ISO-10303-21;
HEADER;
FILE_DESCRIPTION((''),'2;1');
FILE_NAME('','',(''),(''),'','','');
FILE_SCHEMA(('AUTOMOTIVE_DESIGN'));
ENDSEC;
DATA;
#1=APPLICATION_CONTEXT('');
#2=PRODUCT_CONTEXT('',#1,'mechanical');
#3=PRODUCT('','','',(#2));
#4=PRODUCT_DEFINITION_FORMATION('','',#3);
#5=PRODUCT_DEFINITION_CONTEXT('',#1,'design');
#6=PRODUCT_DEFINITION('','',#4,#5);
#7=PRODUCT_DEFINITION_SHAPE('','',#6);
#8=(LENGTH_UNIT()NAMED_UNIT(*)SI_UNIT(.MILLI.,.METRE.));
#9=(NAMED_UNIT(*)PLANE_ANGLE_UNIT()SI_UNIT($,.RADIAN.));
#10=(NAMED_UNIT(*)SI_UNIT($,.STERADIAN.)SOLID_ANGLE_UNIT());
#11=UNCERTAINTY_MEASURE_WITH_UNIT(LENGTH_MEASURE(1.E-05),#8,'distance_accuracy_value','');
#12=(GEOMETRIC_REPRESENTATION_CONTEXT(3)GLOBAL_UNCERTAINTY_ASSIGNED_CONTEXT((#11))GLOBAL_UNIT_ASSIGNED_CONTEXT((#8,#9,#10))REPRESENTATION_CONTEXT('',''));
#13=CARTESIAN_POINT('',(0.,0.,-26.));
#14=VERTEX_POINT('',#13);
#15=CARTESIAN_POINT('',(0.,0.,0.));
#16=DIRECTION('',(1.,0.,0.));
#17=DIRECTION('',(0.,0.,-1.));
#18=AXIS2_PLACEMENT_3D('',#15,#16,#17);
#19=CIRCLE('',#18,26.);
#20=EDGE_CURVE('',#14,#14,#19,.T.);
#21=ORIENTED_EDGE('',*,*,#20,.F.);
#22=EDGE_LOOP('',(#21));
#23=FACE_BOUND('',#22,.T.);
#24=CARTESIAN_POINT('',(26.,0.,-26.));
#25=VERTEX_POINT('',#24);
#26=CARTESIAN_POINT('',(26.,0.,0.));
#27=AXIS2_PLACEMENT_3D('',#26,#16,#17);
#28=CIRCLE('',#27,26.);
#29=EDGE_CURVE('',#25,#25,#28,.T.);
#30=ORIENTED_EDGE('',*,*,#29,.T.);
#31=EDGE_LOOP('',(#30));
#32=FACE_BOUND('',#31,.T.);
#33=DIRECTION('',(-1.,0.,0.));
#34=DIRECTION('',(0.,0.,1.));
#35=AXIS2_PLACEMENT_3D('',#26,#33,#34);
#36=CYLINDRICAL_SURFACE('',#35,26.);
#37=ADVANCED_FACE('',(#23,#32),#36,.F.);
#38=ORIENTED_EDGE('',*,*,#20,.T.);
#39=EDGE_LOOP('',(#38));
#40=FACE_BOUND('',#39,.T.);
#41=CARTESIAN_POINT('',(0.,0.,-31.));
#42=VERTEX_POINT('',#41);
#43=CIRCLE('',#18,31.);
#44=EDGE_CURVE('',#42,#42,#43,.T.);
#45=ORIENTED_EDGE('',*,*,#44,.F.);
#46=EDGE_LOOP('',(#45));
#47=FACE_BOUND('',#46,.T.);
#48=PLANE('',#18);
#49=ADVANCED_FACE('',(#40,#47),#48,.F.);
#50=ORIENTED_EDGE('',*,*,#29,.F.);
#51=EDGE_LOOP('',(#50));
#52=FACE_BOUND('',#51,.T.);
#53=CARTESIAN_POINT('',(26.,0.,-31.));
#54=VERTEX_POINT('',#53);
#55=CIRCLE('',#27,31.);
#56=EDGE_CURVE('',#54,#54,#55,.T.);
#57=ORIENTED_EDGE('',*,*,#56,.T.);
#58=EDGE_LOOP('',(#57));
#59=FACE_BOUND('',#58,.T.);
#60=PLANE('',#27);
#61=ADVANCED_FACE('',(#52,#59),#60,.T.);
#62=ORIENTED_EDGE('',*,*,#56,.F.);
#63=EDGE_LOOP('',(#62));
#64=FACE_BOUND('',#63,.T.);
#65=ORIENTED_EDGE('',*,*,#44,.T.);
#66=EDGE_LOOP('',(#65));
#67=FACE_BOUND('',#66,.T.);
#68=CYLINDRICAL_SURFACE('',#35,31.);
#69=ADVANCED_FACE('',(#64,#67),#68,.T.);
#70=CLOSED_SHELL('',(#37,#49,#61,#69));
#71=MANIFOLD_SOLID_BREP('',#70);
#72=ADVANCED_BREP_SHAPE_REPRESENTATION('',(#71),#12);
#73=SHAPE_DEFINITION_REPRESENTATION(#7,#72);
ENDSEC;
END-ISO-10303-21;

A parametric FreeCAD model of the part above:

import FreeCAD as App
import Part
import Sketcher
Q = App.Units.Quantity

doc = App.newDocument("Part")
body = doc.addObject("PartDesign::Body", "Body")

sketch1 = body.newObject("Sketcher::SketchObject", "Sketch")
sketch1.AttachmentSupport = (doc.getObject("YZ_Plane"), [""])
sketch1.MapMode = "FlatFace"
sketch1.addGeometry([
    Part.Circle(App.Vector(0, 0, 0), App.Vector(0, 0, 1), 31),
    Part.Circle(App.Vector(0, 0, 0), App.Vector(0, 0, 1), 26),
], False)
sketch1.addConstraint([
    Sketcher.Constraint("Coincident", 0, 3, -1, 1),
    Sketcher.Constraint("Coincident", 1, 3, -1, 1),
    Sketcher.Constraint("Diameter", 0, Q("62 mm")),
    Sketcher.Constraint("Diameter", 1, Q("52 mm")),
])
pad1 = body.newObject("PartDesign::Pad", "Pad")
pad1.Profile = sketch1
pad1.Length = 26

doc.recompute()
